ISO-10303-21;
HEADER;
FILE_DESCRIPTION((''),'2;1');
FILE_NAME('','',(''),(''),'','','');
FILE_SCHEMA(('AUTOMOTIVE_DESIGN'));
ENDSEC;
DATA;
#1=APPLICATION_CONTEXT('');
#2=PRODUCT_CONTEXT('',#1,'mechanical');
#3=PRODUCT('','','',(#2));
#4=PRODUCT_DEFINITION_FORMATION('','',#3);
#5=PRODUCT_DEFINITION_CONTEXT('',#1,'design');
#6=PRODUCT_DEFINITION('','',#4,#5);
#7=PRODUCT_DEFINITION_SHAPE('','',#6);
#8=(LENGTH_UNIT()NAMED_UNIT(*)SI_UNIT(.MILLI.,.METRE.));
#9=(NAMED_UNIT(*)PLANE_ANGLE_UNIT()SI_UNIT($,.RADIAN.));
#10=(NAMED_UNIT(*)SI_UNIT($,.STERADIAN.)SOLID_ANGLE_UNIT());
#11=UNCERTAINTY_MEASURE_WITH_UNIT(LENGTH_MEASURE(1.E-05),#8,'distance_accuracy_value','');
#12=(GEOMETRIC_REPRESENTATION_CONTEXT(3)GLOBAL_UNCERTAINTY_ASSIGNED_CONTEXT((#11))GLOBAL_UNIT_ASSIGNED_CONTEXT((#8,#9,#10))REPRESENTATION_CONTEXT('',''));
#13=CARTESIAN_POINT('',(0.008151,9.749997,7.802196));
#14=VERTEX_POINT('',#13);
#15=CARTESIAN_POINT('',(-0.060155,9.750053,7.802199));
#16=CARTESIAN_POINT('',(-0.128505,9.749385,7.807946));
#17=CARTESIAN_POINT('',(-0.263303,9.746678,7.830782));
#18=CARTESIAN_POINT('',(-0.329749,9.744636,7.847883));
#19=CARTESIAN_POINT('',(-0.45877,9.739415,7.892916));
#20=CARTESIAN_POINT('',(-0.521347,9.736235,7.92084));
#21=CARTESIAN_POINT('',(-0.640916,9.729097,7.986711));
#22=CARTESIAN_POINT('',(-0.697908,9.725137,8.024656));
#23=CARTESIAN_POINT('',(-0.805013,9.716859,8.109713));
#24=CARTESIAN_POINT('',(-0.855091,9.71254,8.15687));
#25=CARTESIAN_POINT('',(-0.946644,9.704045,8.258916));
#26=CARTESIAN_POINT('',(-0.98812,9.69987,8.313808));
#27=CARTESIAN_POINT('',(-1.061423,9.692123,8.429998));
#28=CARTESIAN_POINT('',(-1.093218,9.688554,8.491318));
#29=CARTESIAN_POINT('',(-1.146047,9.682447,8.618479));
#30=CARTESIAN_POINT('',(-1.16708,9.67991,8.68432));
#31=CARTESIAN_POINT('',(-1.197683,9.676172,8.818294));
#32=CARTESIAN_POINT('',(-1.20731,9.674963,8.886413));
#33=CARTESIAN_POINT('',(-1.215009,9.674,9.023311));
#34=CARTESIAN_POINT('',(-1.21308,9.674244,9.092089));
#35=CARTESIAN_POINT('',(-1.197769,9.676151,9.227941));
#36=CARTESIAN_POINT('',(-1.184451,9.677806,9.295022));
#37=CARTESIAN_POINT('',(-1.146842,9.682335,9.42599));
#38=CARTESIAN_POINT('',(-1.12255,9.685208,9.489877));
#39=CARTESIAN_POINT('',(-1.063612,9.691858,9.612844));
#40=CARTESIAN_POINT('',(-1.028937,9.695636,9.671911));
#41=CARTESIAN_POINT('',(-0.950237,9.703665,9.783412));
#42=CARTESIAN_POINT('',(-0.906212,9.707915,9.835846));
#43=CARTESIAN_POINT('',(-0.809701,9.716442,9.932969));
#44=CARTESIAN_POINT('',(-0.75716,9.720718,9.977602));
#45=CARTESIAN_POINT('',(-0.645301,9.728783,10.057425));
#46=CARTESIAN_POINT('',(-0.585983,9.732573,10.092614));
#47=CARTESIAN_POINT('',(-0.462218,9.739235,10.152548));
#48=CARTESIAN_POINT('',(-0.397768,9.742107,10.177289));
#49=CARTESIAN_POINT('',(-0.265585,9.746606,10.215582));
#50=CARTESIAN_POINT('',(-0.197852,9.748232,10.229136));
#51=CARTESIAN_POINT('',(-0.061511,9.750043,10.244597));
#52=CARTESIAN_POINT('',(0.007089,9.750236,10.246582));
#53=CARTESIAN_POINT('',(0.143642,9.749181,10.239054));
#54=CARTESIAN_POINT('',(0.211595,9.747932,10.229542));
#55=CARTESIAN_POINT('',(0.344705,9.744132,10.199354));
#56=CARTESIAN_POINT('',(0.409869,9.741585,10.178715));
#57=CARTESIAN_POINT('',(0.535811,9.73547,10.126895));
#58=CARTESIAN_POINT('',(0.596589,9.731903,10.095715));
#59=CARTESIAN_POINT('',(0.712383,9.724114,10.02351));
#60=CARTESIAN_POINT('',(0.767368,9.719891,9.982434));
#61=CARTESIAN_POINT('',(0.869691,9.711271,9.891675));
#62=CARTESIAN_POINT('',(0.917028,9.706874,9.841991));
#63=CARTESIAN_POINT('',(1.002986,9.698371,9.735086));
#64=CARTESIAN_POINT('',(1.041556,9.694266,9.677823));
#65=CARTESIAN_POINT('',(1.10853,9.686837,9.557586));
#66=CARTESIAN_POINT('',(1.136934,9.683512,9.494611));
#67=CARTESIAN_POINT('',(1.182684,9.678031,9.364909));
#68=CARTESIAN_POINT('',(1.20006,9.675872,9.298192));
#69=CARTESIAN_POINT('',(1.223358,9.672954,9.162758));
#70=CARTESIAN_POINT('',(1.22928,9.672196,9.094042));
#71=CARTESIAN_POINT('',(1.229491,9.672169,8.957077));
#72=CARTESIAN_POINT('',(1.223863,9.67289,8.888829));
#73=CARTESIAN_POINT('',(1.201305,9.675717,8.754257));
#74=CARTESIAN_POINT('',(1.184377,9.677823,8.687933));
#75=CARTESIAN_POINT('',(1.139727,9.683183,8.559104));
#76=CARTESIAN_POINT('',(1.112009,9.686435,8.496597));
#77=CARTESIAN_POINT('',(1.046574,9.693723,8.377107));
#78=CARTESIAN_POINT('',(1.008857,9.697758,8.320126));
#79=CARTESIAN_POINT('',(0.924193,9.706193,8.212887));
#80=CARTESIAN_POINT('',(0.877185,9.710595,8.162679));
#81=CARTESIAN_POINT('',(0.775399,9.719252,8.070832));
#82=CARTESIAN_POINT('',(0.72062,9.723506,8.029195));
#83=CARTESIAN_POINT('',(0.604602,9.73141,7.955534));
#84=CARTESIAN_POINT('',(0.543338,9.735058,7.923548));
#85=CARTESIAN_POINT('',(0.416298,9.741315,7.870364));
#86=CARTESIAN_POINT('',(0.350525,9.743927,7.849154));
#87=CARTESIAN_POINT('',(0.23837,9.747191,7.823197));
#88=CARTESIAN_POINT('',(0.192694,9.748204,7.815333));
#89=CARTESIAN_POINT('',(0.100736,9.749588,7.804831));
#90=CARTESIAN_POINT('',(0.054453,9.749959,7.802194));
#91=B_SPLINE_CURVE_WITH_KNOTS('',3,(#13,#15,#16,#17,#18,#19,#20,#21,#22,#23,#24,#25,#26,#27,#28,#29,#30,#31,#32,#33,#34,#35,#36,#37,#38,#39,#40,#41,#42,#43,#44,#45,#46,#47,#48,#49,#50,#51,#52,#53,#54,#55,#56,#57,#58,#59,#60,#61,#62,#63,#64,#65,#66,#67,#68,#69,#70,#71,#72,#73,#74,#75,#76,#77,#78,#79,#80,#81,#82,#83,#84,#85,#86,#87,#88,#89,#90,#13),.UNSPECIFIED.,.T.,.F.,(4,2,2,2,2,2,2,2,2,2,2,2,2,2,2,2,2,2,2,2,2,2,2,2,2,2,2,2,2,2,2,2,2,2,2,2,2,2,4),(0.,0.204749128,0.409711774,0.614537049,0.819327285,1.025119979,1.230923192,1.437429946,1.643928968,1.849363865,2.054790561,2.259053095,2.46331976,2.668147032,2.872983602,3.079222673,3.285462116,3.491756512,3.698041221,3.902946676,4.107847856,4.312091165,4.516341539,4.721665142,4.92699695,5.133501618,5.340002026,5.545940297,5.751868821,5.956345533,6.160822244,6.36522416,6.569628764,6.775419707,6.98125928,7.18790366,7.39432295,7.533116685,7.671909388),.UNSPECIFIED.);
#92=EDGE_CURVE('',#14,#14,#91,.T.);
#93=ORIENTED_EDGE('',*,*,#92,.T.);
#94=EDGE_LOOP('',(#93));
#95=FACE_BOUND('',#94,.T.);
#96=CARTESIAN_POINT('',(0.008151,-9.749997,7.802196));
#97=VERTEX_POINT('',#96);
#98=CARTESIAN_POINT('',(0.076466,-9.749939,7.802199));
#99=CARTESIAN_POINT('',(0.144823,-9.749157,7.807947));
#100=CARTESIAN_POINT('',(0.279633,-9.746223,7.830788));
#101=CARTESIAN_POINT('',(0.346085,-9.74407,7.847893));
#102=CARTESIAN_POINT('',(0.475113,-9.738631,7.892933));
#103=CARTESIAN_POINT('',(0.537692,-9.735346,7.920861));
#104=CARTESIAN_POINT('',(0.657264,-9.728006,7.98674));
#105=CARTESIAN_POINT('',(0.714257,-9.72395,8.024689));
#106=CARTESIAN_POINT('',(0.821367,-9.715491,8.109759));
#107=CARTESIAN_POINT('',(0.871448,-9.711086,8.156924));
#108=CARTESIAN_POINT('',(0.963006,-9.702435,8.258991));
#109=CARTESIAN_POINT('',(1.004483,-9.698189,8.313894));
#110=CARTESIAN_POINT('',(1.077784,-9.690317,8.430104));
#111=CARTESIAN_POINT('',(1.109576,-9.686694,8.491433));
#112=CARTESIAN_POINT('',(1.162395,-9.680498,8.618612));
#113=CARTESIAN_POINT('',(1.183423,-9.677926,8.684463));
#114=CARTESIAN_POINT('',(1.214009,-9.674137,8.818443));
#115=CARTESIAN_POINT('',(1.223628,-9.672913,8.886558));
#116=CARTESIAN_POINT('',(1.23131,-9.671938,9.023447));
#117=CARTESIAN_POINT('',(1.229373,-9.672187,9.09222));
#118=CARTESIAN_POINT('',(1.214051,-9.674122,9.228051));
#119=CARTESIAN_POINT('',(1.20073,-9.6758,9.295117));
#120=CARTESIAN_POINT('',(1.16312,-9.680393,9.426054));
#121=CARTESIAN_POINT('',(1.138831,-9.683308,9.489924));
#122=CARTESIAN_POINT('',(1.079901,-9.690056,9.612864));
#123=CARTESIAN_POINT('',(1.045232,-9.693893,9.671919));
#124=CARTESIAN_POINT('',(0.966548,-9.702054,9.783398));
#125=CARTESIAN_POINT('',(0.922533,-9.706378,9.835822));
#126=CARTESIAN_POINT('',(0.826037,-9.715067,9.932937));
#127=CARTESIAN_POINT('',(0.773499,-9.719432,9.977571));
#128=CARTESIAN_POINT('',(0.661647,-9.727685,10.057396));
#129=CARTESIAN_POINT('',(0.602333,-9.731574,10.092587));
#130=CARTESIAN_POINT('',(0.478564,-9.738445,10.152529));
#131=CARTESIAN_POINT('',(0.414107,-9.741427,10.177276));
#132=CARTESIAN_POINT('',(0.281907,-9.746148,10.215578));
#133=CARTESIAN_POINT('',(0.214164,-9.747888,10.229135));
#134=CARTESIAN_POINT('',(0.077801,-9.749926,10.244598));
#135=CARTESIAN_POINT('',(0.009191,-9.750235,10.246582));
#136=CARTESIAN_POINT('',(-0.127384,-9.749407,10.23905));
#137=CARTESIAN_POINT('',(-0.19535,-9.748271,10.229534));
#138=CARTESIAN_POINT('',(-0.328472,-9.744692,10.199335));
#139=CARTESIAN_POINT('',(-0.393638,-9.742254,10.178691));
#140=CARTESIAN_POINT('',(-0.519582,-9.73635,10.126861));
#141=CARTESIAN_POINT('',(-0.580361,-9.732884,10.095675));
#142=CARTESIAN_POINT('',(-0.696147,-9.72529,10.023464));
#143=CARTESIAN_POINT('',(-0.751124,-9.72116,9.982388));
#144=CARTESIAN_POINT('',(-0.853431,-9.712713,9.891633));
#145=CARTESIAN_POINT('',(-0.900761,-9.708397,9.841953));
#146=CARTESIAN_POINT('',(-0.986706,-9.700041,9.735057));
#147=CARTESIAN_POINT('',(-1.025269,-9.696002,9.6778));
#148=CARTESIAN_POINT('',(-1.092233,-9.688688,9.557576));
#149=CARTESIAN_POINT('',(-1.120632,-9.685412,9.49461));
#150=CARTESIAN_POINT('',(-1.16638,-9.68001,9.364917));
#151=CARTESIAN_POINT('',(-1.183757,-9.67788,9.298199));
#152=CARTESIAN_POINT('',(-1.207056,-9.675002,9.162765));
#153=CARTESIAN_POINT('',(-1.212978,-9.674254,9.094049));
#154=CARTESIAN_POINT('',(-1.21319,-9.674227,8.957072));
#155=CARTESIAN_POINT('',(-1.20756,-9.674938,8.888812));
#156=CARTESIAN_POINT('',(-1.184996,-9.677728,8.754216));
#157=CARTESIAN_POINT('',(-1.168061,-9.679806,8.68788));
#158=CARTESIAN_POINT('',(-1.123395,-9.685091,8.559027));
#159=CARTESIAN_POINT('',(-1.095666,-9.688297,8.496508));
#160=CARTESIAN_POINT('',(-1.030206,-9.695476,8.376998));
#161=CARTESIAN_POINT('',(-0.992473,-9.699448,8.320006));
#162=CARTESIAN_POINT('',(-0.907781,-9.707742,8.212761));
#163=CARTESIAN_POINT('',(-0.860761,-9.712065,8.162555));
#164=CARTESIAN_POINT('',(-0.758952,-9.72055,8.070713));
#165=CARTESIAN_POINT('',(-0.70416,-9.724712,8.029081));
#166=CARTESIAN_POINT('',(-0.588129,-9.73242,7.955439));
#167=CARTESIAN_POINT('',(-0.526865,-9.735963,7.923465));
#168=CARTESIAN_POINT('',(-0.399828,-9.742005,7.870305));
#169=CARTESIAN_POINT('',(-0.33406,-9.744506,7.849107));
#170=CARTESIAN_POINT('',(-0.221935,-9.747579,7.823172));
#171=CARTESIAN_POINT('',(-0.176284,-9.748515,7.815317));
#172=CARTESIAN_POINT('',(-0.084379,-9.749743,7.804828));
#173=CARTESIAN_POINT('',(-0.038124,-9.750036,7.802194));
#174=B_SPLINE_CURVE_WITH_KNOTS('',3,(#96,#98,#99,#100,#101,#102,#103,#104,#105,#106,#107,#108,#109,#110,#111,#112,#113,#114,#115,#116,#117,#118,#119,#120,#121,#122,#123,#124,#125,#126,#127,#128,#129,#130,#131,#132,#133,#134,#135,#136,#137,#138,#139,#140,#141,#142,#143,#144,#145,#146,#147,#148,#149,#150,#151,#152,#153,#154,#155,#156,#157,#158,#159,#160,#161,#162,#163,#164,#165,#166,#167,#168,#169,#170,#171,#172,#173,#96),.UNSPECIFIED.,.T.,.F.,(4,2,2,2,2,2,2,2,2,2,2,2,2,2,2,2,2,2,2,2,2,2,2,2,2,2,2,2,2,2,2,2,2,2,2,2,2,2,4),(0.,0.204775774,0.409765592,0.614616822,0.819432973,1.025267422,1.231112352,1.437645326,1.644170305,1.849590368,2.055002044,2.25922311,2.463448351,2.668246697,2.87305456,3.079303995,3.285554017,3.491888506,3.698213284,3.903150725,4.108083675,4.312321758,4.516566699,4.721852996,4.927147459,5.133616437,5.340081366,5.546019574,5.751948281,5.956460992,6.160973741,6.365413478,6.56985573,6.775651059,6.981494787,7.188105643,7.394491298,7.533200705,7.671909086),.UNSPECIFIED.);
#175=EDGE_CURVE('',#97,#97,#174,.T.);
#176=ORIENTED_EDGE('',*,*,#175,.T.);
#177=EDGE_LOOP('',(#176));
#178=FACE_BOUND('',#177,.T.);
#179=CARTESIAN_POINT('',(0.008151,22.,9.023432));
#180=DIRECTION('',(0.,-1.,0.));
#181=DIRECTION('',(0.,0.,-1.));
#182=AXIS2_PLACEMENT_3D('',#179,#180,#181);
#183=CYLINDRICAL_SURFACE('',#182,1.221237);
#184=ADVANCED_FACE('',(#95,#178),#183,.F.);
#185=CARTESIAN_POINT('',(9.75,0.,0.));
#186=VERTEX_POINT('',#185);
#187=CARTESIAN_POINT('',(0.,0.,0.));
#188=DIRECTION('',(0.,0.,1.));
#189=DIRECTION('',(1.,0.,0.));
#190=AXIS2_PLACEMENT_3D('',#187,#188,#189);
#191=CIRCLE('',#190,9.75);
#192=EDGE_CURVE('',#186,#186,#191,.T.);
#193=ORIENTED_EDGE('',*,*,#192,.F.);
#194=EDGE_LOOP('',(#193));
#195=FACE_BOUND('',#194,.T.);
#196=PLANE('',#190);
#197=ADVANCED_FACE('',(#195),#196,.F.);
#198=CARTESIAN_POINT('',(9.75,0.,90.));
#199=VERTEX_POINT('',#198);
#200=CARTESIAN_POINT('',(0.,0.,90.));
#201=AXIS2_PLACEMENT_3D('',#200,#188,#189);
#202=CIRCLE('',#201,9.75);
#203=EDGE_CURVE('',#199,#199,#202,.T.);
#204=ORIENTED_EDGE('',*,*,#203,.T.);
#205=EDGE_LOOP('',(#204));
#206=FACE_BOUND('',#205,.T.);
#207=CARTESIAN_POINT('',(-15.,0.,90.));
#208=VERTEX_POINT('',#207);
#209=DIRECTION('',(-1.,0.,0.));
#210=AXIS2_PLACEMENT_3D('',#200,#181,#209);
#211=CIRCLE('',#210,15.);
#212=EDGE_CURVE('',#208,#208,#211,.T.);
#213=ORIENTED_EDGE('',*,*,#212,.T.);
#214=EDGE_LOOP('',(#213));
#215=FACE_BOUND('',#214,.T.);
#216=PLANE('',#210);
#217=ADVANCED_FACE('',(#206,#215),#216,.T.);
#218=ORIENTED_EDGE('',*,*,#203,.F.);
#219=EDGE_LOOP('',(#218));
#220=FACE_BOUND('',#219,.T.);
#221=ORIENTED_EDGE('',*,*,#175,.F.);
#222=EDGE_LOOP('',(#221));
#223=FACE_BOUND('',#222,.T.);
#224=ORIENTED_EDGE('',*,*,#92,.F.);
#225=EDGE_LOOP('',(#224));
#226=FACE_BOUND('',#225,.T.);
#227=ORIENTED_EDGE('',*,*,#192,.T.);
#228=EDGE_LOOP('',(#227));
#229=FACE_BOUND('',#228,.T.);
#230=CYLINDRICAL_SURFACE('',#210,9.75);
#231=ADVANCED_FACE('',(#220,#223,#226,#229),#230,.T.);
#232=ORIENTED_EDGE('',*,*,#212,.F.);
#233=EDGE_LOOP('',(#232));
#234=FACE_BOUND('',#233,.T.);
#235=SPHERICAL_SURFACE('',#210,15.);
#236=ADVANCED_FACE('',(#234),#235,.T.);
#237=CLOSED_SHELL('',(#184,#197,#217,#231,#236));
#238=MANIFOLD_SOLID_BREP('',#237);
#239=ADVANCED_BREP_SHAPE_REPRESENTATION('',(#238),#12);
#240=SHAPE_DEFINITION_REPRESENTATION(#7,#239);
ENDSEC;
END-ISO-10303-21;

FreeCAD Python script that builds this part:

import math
import FreeCAD as App
import Part
import Sketcher
from FreeCAD import Vector
Q = App.Units.Quantity

doc = App.newDocument("Part")
body = doc.addObject("PartDesign::Body", "Body")

sketch1 = body.newObject("Sketcher::SketchObject", "Sketch")
sketch1.AttachmentSupport = (doc.getObject("XY_Plane"), [""])
sketch1.MapMode = "FlatFace"
sketch1.addGeometry(Part.Circle(Vector(0, 0, 0), Vector(0, 0, 1), 10), False)
sketch1.addConstraint(Sketcher.Constraint("Coincident", 0, 3, -1, 1))
sketch1.addConstraint(Sketcher.Constraint("Diameter", 0, Q("19.5 mm")))
pad1 = body.newObject("PartDesign::Pad", "Pad")
pad1.Profile = sketch1
pad1.Length = 90

sketch2 = body.newObject("Sketcher::SketchObject", "Sketch001")
sketch2.AttachmentSupport = (doc.getObject("XY_Plane"), [""])
sketch2.MapMode = "FlatFace"
sketch2.AttachmentOffset = App.Placement(Vector(0, 0, 90), App.Rotation())
sketch2.addGeometry(Part.LineSegment(Vector(0, 15, 0), Vector(0, -15, 0)), False)
sketch2.addGeometry(Part.ArcOfCircle(Part.Circle(Vector(0, 0, 0), Vector(0, 0, 1), 15), math.radians(-90), math.radians(90)), False)
sketch2.addConstraint(Sketcher.Constraint("Coincident", 0, 1, 1, 2))
sketch2.addConstraint(Sketcher.Constraint("Coincident", 1, 1, 0, 2))
sketch2.addConstraint(Sketcher.Constraint("Vertical", 0))
sketch2.addConstraint(Sketcher.Constraint("Coincident", 1, 3, -1, 1))
sketch2.addConstraint(Sketcher.Constraint("PointOnObject", 0, 1, -2))
sketch2.addConstraint(Sketcher.Constraint("Radius", 1, Q("15 mm")))
revolution = body.newObject("PartDesign::Revolution", "Revolution")
revolution.Profile = sketch2
revolution.ReferenceAxis = (sketch2, ["V_Axis"])
revolution.Angle = 180
revolution.Reversed = True

sketch3 = body.newObject("Sketcher::SketchObject", "Sketch002")
sketch3.AttachmentSupport = (doc.getObject("XZ_Plane"), [""])
sketch3.MapMode = "FlatFace"
sketch3.addGeometry(Part.Circle(Vector(0, 9, 0), Vector(0, 0, 1), 1.2), False)
sketch3.addConstraint(Sketcher.Constraint("Diameter", 0, Q("2.442473 mm")))
sketch3.addConstraint(Sketcher.Constraint("DistanceX", -1, 1, 0, 3, Q("0.008151 mm")))
sketch3.addConstraint(Sketcher.Constraint("DistanceY", -1, 1, 0, 3, Q("9.023432 mm")))
pocket1 = body.newObject("PartDesign::Pocket", "Pocket")
pocket1.Profile = sketch3
pocket1.Type = "ThroughAll"
pocket1.Midplane = True

doc.recompute()
